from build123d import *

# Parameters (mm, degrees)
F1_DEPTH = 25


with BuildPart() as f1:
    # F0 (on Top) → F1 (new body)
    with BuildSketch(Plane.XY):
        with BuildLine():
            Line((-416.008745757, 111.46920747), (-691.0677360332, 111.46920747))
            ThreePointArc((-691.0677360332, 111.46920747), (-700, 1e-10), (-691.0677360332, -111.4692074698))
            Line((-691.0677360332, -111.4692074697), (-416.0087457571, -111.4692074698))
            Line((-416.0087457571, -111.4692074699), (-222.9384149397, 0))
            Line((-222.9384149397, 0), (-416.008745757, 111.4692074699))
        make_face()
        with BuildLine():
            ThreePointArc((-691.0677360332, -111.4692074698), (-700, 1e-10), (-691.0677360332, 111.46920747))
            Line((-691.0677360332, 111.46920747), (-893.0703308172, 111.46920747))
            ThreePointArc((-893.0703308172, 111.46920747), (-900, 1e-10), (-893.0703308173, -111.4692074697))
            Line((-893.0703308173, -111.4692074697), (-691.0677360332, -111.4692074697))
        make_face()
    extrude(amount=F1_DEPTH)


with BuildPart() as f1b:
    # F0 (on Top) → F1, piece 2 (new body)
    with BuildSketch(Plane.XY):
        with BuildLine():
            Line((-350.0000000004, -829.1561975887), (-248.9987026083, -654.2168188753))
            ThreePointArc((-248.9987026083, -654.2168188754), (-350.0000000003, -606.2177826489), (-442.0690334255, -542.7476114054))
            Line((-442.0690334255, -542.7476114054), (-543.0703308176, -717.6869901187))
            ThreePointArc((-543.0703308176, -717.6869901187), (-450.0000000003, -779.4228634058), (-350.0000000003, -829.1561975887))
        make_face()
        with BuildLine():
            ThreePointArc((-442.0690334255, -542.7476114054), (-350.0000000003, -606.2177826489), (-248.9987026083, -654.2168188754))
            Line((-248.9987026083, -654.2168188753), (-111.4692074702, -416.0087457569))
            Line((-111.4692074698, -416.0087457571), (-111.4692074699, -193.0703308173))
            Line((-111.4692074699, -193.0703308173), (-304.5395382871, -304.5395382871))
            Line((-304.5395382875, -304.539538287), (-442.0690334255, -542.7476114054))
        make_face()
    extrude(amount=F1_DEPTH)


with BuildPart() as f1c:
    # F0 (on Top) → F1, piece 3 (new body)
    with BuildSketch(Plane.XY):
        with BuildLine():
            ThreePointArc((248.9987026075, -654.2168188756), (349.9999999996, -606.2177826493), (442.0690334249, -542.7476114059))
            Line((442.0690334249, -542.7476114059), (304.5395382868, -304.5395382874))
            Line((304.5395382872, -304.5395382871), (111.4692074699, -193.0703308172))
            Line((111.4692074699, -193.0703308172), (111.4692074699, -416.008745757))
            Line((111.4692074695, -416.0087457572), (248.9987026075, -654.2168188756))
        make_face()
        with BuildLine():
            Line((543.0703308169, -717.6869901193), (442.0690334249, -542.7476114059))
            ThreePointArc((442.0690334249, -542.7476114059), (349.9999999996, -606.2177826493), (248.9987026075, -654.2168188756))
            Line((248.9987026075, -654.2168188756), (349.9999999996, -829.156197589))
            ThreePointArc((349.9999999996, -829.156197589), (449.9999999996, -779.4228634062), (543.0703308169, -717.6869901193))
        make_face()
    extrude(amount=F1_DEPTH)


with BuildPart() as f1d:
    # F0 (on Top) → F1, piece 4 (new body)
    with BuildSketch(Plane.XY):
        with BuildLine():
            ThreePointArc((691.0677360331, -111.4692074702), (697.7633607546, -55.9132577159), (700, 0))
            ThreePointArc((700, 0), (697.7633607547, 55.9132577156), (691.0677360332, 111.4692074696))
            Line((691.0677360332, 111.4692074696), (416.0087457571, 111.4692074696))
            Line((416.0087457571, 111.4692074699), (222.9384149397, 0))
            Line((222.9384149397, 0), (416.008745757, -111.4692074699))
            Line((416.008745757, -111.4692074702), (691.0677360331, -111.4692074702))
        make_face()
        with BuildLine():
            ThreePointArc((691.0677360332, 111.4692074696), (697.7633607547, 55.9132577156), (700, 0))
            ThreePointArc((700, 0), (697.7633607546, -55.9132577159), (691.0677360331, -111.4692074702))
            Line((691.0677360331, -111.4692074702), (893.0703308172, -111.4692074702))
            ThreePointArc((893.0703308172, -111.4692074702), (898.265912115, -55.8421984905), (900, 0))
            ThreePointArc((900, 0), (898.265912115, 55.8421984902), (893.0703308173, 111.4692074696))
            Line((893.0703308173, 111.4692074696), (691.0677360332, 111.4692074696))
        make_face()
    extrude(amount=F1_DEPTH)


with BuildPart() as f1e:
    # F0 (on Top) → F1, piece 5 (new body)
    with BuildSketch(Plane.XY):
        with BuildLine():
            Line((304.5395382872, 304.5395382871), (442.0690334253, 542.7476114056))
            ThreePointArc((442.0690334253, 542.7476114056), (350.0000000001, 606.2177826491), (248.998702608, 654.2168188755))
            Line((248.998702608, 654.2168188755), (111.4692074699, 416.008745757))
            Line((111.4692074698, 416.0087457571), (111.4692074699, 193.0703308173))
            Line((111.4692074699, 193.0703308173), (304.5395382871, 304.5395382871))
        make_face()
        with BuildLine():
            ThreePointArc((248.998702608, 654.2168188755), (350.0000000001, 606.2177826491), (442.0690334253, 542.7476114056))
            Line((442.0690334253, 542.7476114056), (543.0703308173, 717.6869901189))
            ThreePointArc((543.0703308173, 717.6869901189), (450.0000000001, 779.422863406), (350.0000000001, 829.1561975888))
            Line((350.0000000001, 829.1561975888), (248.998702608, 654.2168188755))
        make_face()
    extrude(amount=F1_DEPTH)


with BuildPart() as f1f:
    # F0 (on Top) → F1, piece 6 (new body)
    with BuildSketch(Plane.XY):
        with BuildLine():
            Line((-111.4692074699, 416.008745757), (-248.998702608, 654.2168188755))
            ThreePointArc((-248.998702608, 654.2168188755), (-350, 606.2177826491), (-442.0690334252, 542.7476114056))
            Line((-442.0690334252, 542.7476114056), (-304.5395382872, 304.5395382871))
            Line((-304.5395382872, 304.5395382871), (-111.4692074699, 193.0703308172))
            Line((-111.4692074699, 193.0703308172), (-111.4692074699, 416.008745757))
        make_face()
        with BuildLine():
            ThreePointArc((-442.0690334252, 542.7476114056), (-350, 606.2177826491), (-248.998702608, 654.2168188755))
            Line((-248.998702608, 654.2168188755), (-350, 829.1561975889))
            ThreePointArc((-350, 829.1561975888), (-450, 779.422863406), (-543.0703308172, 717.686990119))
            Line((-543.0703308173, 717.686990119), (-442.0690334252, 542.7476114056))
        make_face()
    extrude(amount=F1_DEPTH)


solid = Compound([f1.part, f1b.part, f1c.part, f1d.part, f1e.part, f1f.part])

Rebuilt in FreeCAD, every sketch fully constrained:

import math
import FreeCAD as App
import Part
import Sketcher

V = App.Vector
Q = App.Units.Quantity

doc = App.newDocument("Part")
body = doc.addObject("PartDesign::Body", "Body")

sketch1 = body.newObject("Sketcher::SketchObject", "Sketch")
sketch1.AttachmentSupport = (doc.getObject("XY_Plane"), [""])
sketch1.MapMode = "FlatFace"
sketch1.addGeometry(Part.LineSegment(V(-416, 111, 0), V(-893, 111, 0)), False)
sketch1.addGeometry(Part.ArcOfCircle(Part.Circle(V(0, 0, 0), V(0, 0, 1), 900), math.radians(172.89), math.radians(187.11)), False)
sketch1.addGeometry(Part.LineSegment(V(-893, -111, 0), V(-416, -111, 0)), False)
sketch1.addGeometry(Part.LineSegment(V(-416, -111, 0), V(-223, 0, 0)), False)
sketch1.addGeometry(Part.LineSegment(V(-223, 0, 0), V(-416, 111, 0)), False)
sketch1.addConstraint(Sketcher.Constraint("Coincident", 0, 2, 1, 1))
sketch1.addConstraint(Sketcher.Constraint("Coincident", 1, 2, 2, 1))
sketch1.addConstraint(Sketcher.Constraint("Coincident", 2, 2, 3, 1))
sketch1.addConstraint(Sketcher.Constraint("Coincident", 3, 2, 4, 1))
sketch1.addConstraint(Sketcher.Constraint("Coincident", 4, 2, 0, 1))
sketch1.addConstraint(Sketcher.Constraint("Horizontal", 0))
sketch1.addConstraint(Sketcher.Constraint("Horizontal", 2))
sketch1.addConstraint(Sketcher.Constraint("Coincident", 1, 3, -1, 1))
sketch1.addConstraint(Sketcher.Constraint("Symmetric", 2, 2, 4, 2, -1))
sketch1.addConstraint(Sketcher.Constraint("PointOnObject", 3, 2, -1))
sketch1.addConstraint(Sketcher.Constraint("Radius", 1, 900.0))
sketch1.addConstraint(Sketcher.Constraint("Angle", 3, Q("30 deg")))
sketch1.addConstraint(Sketcher.Constraint("DistanceX", 0, 2, 0, 1, 477.061585))
sketch1.addConstraint(Sketcher.Constraint("DistanceX", 0, 2, -1, 1, 893.070331))
pad1 = body.newObject("PartDesign::Pad", "Pad")
pad1.Profile = sketch1
pad1.Length = 25
body2 = doc.addObject("PartDesign::Body", "Body001")

sketch2 = body2.newObject("Sketcher::SketchObject", "Sketch001")
sketch2.AttachmentSupport = (doc.getObject("XY_Plane001"), [""])
sketch2.MapMode = "FlatFace"
sketch2.addGeometry(Part.LineSegment(V(-350, -829, 0), V(-111, -416, 0)), False)
sketch2.addGeometry(Part.LineSegment(V(-111, -416, 0), V(-111, -193, 0)), False)
sketch2.addGeometry(Part.LineSegment(V(-111, -193, 0), V(-305, -305, 0)), False)
sketch2.addGeometry(Part.LineSegment(V(-305, -305, 0), V(-543, -718, 0)), False)
sketch2.addGeometry(Part.ArcOfCircle(Part.Circle(V(0, 0, 0), V(0, 0, 1), 900), math.radians(-127.11), math.radians(-112.89)), False)
sketch2.addConstraint(Sketcher.Constraint("Coincident", 0, 2, 1, 1))
sketch2.addConstraint(Sketcher.Constraint("Coincident", 1, 2, 2, 1))
sketch2.addConstraint(Sketcher.Constraint("Coincident", 2, 2, 3, 1))
sketch2.addConstraint(Sketcher.Constraint("Coincident", 3, 2, 4, 1))
sketch2.addConstraint(Sketcher.Constraint("Coincident", 4, 2, 0, 1))
sketch2.addConstraint(Sketcher.Constraint("Vertical", 1))
sketch2.addConstraint(Sketcher.Constraint("Coincident", 4, 3, -1, 1))
sketch2.addConstraint(Sketcher.Constraint("Parallel", 0, 3))
sketch2.addConstraint(Sketcher.Constraint("Equal", 0, 3))
sketch2.addConstraint(Sketcher.Constraint("Radius", 4, 900.0))
sketch2.addConstraint(Sketcher.Constraint("Angle", 0, Q("60 deg")))
sketch2.addConstraint(Sketcher.Constraint("Angle", 2, Q("-150 deg")))
sketch2.addConstraint(Sketcher.Constraint("DistanceY", 1, 1, 1, 2, 222.938415))
sketch2.addConstraint(Sketcher.Constraint("DistanceY", 1, 2, -1, 1, 193.070331))
sketch2.addConstraint(Sketcher.Constraint("DistanceX", 2, 2, -1, 1, 304.539538))
pad2 = body2.newObject("PartDesign::Pad", "Pad001")
pad2.Profile = sketch2
pad2.Length = 25
body3 = doc.addObject("PartDesign::Body", "Body002")

sketch3 = body3.newObject("Sketcher::SketchObject", "Sketch002")
sketch3.AttachmentSupport = (doc.getObject("XY_Plane002"), [""])
sketch3.MapMode = "FlatFace"
sketch3.addGeometry(Part.LineSegment(V(305, -305, 0), V(111, -193, 0)), False)
sketch3.addGeometry(Part.LineSegment(V(111, -193, 0), V(111, -416, 0)), False)
sketch3.addGeometry(Part.LineSegment(V(111, -416, 0), V(350, -829, 0)), False)
sketch3.addGeometry(Part.ArcOfCircle(Part.Circle(V(0, 0, 0), V(0, 0, 1), 900), math.radians(-67.11), math.radians(-52.89)), False)
sketch3.addGeometry(Part.LineSegment(V(543, -718, 0), V(305, -305, 0)), False)
sketch3.addConstraint(Sketcher.Constraint("Coincident", 0, 2, 1, 1))
sketch3.addConstraint(Sketcher.Constraint("Coincident", 1, 2, 2, 1))
sketch3.addConstraint(Sketcher.Constraint("Coincident", 2, 2, 3, 1))
sketch3.addConstraint(Sketcher.Constraint("Coincident", 3, 2, 4, 1))
sketch3.addConstraint(Sketcher.Constraint("Coincident", 4, 2, 0, 1))
sketch3.addConstraint(Sketcher.Constraint("Vertical", 1))
sketch3.addConstraint(Sketcher.Constraint("Coincident", 3, 3, -1, 1))
sketch3.addConstraint(Sketcher.Constraint("Parallel", 2, 4))
sketch3.addConstraint(Sketcher.Constraint("Equal", 2, 4))
sketch3.addConstraint(Sketcher.Constraint("Radius", 3, 900.0))
sketch3.addConstraint(Sketcher.Constraint("Angle", 0, Q("150 deg")))
sketch3.addConstraint(Sketcher.Constraint("Angle", 2, Q("-60 deg")))
sketch3.addConstraint(Sketcher.Constraint("DistanceX", -1, 1, 2, 2, 350.0))
sketch3.addConstraint(Sketcher.Constraint("DistanceY", 1, 2, 1, 1, 222.938415))
sketch3.addConstraint(Sketcher.Constraint("DistanceY", 0, 2, -1, 1, 193.070331))
pad3 = body3.newObject("PartDesign::Pad", "Pad002")
pad3.Profile = sketch3
pad3.Length = 25
body4 = doc.addObject("PartDesign::Body", "Body003")

sketch4 = body4.newObject("Sketcher::SketchObject", "Sketch003")
sketch4.AttachmentSupport = (doc.getObject("XY_Plane003"), [""])
sketch4.MapMode = "FlatFace"
sketch4.addGeometry(Part.LineSegment(V(416, 111, 0), V(223, 0, 0)), False)
sketch4.addGeometry(Part.LineSegment(V(223, 0, 0), V(416, -111, 0)), False)
sketch4.addGeometry(Part.LineSegment(V(416, -111, 0), V(893, -111, 0)), False)
sketch4.addGeometry(Part.ArcOfCircle(Part.Circle(V(0, 0, 0), V(0, 0, 1), 900), math.radians(-7.11), math.radians(0)), False)
sketch4.addGeometry(Part.ArcOfCircle(Part.Circle(V(0, 0, 0), V(0, 0, 1), 900), math.radians(0), math.radians(7.11)), False)
sketch4.addGeometry(Part.LineSegment(V(893, 111, 0), V(416, 111, 0)), False)
sketch4.addConstraint(Sketcher.Constraint("Coincident", 0, 2, 1, 1))
sketch4.addConstraint(Sketcher.Constraint("Coincident", 1, 2, 2, 1))
sketch4.addConstraint(Sketcher.Constraint("Coincident", 2, 2, 3, 1))
sketch4.addConstraint(Sketcher.Constraint("Coincident", 3, 2, 4, 1))
sketch4.addConstraint(Sketcher.Constraint("Coincident", 4, 2, 5, 1))
sketch4.addConstraint(Sketcher.Constraint("Coincident", 5, 2, 0, 1))
sketch4.addConstraint(Sketcher.Constraint("Horizontal", 2))
sketch4.addConstraint(Sketcher.Constraint("Horizontal", 5))
sketch4.addConstraint(Sketcher.Constraint("Coincident", 3, 3, -1, 1))
sketch4.addConstraint(Sketcher.Constraint("Coincident", 4, 3, -1, 1))
sketch4.addConstraint(Sketcher.Constraint("Symmetric", 1, 2, 5, 2, -1))
sketch4.addConstraint(Sketcher.Constraint("PointOnObject", 0, 2, -1))
sketch4.addConstraint(Sketcher.Constraint("PointOnObject", 3, 2, -1))
sketch4.addConstraint(Sketcher.Constraint("Radius", 3, 900.0))
sketch4.addConstraint(Sketcher.Constraint("Angle", 0, Q("-150 deg")))
sketch4.addConstraint(Sketcher.Constraint("DistanceX", 2, 1, 2, 2, 477.061585))
sketch4.addConstraint(Sketcher.Constraint("DistanceX", -1, 1, 2, 2, 893.070331))
pad4 = body4.newObject("PartDesign::Pad", "Pad003")
pad4.Profile = sketch4
pad4.Length = 25
body5 = doc.addObject("PartDesign::Body", "Body004")

sketch5 = body5.newObject("Sketcher::SketchObject", "Sketch004")
sketch5.AttachmentSupport = (doc.getObject("XY_Plane004"), [""])
sketch5.MapMode = "FlatFace"
sketch5.addGeometry(Part.LineSegment(V(305, 305, 0), V(543, 718, 0)), False)
sketch5.addGeometry(Part.ArcOfCircle(Part.Circle(V(0, 0, 0), V(0, 0, 1), 900), math.radians(52.89), math.radians(67.11)), False)
sketch5.addGeometry(Part.LineSegment(V(350, 829, 0), V(111, 416, 0)), False)
sketch5.addGeometry(Part.LineSegment(V(111, 416, 0), V(111, 193, 0)), False)
sketch5.addGeometry(Part.LineSegment(V(111, 193, 0), V(305, 305, 0)), False)
sketch5.addConstraint(Sketcher.Constraint("Coincident", 0, 2, 1, 1))
sketch5.addConstraint(Sketcher.Constraint("Coincident", 1, 2, 2, 1))
sketch5.addConstraint(Sketcher.Constraint("Coincident", 2, 2, 3, 1))
sketch5.addConstraint(Sketcher.Constraint("Coincident", 3, 2, 4, 1))
sketch5.addConstraint(Sketcher.Constraint("Coincident", 4, 2, 0, 1))
sketch5.addConstraint(Sketcher.Constraint("Vertical", 3))
sketch5.addConstraint(Sketcher.Constraint("Coincident", 1, 3, -1, 1))
sketch5.addConstraint(Sketcher.Constraint("Parallel", 0, 2))
sketch5.addConstraint(Sketcher.Constraint("Equal", 0, 2))
sketch5.addConstraint(Sketcher.Constraint("Radius", 1, 900.0))
sketch5.addConstraint(Sketcher.Constraint("Angle", 0, Q("60 deg")))
sketch5.addConstraint(Sketcher.Constraint("Angle", 4, Q("30 deg")))
sketch5.addConstraint(Sketcher.Constraint("DistanceY", 3, 2, 3, 1, 222.938415))
sketch5.addConstraint(Sketcher.Constraint("DistanceX", -1, 1, 0, 2, 543.070331))
sketch5.addConstraint(Sketcher.Constraint("DistanceY", -1, 1, 3, 2, 193.070331))
pad5 = body5.newObject("PartDesign::Pad", "Pad004")
pad5.Profile = sketch5
pad5.Length = 25
body6 = doc.addObject("PartDesign::Body", "Body005")

sketch6 = body6.newObject("Sketcher::SketchObject", "Sketch005")
sketch6.AttachmentSupport = (doc.getObject("XY_Plane005"), [""])
sketch6.MapMode = "FlatFace"
sketch6.addGeometry(Part.LineSegment(V(-111, 416, 0), V(-350, 829, 0)), False)
sketch6.addGeometry(Part.ArcOfCircle(Part.Circle(V(0, 0, 0), V(0, 0, 1), 900), math.radians(112.89), math.radians(127.11)), False)
sketch6.addGeometry(Part.LineSegment(V(-543, 718, 0), V(-305, 305, 0)), False)
sketch6.addGeometry(Part.LineSegment(V(-305, 305, 0), V(-111, 193, 0)), False)
sketch6.addGeometry(Part.LineSegment(V(-111, 193, 0), V(-111, 416, 0)), False)
sketch6.addConstraint(Sketcher.Constraint("Coincident", 0, 2, 1, 1))
sketch6.addConstraint(Sketcher.Constraint("Coincident", 1, 2, 2, 1))
sketch6.addConstraint(Sketcher.Constraint("Coincident", 2, 2, 3, 1))
sketch6.addConstraint(Sketcher.Constraint("Coincident", 3, 2, 4, 1))
sketch6.addConstraint(Sketcher.Constraint("Coincident", 4, 2, 0, 1))
sketch6.addConstraint(Sketcher.Constraint("Vertical", 4))
sketch6.addConstraint(Sketcher.Constraint("Coincident", 1, 3, -1, 1))
sketch6.addConstraint(Sketcher.Constraint("Parallel", 0, 2))
sketch6.addConstraint(Sketcher.Constraint("Equal", 0, 2))
sketch6.addConstraint(Sketcher.Constraint("Radius", 1, 900.0))
sketch6.addConstraint(Sketcher.Constraint("Angle", 0, Q("120 deg")))
sketch6.addConstraint(Sketcher.Constraint("Angle", 3, Q("-30 deg")))
sketch6.addConstraint(Sketcher.Constraint("DistanceX", 0, 2, -1, 1, 350.0))
sketch6.addConstraint(Sketcher.Constraint("DistanceY", 4, 1, 4, 2, 222.938415))
sketch6.addConstraint(Sketcher.Constraint("DistanceX", 2, 2, -1, 1, 304.539538))
pad6 = body6.newObject("PartDesign::Pad", "Pad005")
pad6.Profile = sketch6
pad6.Length = 25

doc.recompute()
